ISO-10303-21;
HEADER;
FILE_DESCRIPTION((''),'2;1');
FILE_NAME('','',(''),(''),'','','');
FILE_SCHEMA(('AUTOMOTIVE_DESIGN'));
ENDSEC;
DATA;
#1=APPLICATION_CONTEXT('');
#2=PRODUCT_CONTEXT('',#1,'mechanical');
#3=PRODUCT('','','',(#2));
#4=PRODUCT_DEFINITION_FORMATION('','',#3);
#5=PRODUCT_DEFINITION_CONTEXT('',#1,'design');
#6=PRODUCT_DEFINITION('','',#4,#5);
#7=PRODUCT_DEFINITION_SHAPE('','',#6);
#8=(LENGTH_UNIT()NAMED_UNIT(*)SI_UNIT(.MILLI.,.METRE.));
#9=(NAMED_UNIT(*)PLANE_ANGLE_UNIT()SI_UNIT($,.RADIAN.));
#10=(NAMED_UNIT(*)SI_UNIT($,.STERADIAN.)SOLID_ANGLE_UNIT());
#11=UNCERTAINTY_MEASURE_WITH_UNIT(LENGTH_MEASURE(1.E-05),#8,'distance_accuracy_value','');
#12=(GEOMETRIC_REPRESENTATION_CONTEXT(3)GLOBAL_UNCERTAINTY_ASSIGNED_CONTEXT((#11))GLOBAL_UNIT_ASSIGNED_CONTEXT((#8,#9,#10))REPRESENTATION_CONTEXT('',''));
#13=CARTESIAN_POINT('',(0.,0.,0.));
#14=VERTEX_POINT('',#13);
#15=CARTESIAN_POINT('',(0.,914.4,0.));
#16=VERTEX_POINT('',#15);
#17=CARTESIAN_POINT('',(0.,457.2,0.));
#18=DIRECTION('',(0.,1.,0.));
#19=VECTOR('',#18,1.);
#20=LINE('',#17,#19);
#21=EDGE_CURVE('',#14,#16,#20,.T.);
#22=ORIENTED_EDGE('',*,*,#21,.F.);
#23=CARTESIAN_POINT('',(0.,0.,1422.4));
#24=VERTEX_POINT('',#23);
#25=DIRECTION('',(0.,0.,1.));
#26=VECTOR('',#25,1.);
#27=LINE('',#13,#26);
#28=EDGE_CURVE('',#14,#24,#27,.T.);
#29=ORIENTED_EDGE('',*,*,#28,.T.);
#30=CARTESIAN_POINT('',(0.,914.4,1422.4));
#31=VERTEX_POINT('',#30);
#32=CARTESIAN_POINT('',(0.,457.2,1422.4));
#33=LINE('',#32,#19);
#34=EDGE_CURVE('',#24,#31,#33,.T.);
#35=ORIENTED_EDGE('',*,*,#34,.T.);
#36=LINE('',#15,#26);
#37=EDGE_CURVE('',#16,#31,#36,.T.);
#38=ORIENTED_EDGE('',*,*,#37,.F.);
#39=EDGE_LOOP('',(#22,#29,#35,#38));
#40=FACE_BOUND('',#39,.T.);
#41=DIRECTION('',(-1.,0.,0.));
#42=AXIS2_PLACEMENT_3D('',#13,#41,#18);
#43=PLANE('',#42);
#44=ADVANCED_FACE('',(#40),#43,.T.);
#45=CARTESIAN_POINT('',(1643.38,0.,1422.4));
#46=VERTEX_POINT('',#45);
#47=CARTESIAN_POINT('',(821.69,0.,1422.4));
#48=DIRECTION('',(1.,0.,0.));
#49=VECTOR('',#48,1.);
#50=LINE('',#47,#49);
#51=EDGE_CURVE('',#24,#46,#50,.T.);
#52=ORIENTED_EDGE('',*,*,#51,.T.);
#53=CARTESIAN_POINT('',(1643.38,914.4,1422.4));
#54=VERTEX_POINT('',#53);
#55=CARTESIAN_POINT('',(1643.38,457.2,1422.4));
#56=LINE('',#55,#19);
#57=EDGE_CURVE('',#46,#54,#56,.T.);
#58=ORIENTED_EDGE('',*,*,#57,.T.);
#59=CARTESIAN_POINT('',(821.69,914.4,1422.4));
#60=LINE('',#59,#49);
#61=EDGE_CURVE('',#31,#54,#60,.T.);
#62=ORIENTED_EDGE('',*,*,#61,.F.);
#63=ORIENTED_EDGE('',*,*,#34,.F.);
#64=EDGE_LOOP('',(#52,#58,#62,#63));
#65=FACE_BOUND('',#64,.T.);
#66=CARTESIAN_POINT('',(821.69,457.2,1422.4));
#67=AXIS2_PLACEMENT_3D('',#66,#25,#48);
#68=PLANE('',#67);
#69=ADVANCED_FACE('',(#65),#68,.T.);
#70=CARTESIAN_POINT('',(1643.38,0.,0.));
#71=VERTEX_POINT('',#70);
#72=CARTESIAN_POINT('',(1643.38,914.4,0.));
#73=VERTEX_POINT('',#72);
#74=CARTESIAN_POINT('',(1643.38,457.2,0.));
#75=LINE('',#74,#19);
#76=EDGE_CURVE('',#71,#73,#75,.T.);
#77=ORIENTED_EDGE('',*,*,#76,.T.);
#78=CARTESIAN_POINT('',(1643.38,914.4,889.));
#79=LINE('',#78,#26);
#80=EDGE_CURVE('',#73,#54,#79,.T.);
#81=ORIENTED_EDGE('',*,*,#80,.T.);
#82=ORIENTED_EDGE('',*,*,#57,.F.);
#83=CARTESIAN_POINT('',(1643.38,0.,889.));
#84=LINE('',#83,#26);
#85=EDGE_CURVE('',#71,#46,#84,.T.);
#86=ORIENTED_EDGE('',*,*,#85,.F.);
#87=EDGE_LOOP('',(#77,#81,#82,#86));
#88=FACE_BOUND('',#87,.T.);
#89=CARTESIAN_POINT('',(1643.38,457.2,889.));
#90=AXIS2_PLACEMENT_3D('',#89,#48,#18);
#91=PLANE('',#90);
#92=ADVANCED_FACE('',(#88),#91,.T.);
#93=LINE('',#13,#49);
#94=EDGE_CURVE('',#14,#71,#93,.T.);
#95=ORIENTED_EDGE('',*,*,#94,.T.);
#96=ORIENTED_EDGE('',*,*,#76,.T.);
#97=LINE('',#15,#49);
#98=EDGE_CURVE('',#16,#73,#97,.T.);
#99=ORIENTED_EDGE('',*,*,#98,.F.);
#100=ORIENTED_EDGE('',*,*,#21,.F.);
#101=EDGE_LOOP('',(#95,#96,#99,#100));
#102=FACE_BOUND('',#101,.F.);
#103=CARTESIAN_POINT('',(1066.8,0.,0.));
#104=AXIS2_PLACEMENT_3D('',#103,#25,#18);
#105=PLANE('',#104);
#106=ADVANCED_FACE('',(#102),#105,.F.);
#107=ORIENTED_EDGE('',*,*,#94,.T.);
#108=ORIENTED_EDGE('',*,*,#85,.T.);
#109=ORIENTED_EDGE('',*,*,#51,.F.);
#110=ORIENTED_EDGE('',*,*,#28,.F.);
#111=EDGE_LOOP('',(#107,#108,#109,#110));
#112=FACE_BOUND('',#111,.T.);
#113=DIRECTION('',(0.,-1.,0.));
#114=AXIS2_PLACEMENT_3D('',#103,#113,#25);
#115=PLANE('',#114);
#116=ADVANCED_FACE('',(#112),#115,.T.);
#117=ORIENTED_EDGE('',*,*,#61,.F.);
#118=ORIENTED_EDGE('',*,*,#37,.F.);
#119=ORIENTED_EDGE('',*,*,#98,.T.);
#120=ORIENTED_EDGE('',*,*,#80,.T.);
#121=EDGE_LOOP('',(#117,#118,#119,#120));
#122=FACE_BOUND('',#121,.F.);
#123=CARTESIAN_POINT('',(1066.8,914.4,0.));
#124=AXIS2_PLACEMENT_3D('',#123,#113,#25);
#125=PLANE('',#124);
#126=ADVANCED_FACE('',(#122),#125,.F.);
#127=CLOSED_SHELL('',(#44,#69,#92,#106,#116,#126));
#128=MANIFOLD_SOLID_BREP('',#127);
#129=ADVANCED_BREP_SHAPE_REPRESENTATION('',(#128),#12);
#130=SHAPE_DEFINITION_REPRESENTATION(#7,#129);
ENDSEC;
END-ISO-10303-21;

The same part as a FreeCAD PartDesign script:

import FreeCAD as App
import Part
import Sketcher
Q = App.Units.Quantity

doc = App.newDocument("Part")
body = doc.addObject("PartDesign::Body", "Body")

# Sketch on XY plane
sketch1 = doc.addObject("Sketcher::SketchObject", "Sketch")
body.addObject(sketch1)
sketch1.AttachmentSupport = (doc.XY_Plane, [""])
sketch1.MapMode = "FlatFace"
sketch1.addGeometry([
    Part.LineSegment(App.Vector(0, 914.4, 0), App.Vector(0, 0, 0)),
    Part.LineSegment(App.Vector(0, 0, 0), App.Vector(1066.8, 0, 0)),
    Part.LineSegment(App.Vector(1066.8, 0, 0), App.Vector(1066.8, 914.4, 0)),
    Part.LineSegment(App.Vector(1066.8, 914.4, 0), App.Vector(0, 914.4, 0)),
], False)
sketch1.addConstraint([
    Sketcher.Constraint("Coincident", 0, 2, 1, 1),
    Sketcher.Constraint("Coincident", 1, 2, 2, 1),
    Sketcher.Constraint("Coincident", 2, 2, 3, 1),
    Sketcher.Constraint("Coincident", 3, 2, 0, 1),
    Sketcher.Constraint("Vertical", 0),
    Sketcher.Constraint("Horizontal", 1),
    Sketcher.Constraint("Vertical", 2),
    Sketcher.Constraint("Horizontal", 3),
    Sketcher.Constraint("Coincident", 0, 2, -1, 1),
    Sketcher.Constraint("DistanceX", 1, 1, 1, 2, Q("42 in")),
    Sketcher.Constraint("DistanceY", 0, 2, 0, 1, Q("36 in")),
])
pad1 = doc.addObject("PartDesign::Pad", "Pad")
body.addObject(pad1)
pad1.Profile = sketch1
pad1.Length = Q("70 in")

# Sketch on YZ plane
sketch2 = doc.addObject("Sketcher::SketchObject", "Sketch001")
body.addObject(sketch2)
sketch2.AttachmentSupport = (doc.YZ_Plane, [""])
sketch2.MapMode = "FlatFace"
sketch2.AttachmentOffset = App.Placement(App.Vector(0, 0, 42 * 25.4), App.Rotation())
sketch2.addGeometry([
    Part.LineSegment(App.Vector(0, 1778, 0), App.Vector(0, 0, 0)),
    Part.LineSegment(App.Vector(0, 0, 0), App.Vector(914.4, 0, 0)),
    Part.LineSegment(App.Vector(914.4, 0, 0), App.Vector(914.4, 1778, 0)),
    Part.LineSegment(App.Vector(914.4, 1778, 0), App.Vector(0, 1778, 0)),
], False)
sketch2.addConstraint([
    Sketcher.Constraint("Coincident", 0, 2, 1, 1),
    Sketcher.Constraint("Coincident", 1, 2, 2, 1),
    Sketcher.Constraint("Coincident", 2, 2, 3, 1),
    Sketcher.Constraint("Coincident", 3, 2, 0, 1),
    Sketcher.Constraint("Vertical", 0),
    Sketcher.Constraint("Horizontal", 1),
    Sketcher.Constraint("Vertical", 2),
    Sketcher.Constraint("Horizontal", 3),
    Sketcher.Constraint("Coincident", 0, 2, -1, 1),
    Sketcher.Constraint("DistanceX", 1, 1, 1, 2, Q("36 in")),
    Sketcher.Constraint("DistanceY", 0, 2, 0, 1, Q("70 in")),
])
pad2 = doc.addObject("PartDesign::Pad", "Pad001")
body.addObject(pad2)
pad2.Profile = sketch2
pad2.Length = Q("22.7 in")

# Sketch on XY plane
sketch3 = doc.addObject("Sketcher::SketchObject", "Sketch002")
body.addObject(sketch3)
sketch3.AttachmentSupport = (doc.XY_Plane, [""])
sketch3.MapMode = "FlatFace"
sketch3.AttachmentOffset = App.Placement(App.Vector(0, 0, 70 * 25.4), App.Rotation())
sketch3.addGeometry([
    Part.LineSegment(App.Vector(0, 914.4, 0), App.Vector(0, 0, 0)),
    Part.LineSegment(App.Vector(0, 0, 0), App.Vector(1643.38, 0, 0)),
    Part.LineSegment(App.Vector(1643.38, 0, 0), App.Vector(1643.38, 914.4, 0)),
    Part.LineSegment(App.Vector(1643.38, 914.4, 0), App.Vector(0, 914.4, 0)),
], False)
sketch3.addConstraint([
    Sketcher.Constraint("Coincident", 0, 2, 1, 1),
    Sketcher.Constraint("Coincident", 1, 2, 2, 1),
    Sketcher.Constraint("Coincident", 2, 2, 3, 1),
    Sketcher.Constraint("Coincident", 3, 2, 0, 1),
    Sketcher.Constraint("Vertical", 0),
    Sketcher.Constraint("Horizontal", 1),
    Sketcher.Constraint("Vertical", 2),
    Sketcher.Constraint("Horizontal", 3),
    Sketcher.Constraint("Coincident", 0, 2, -1, 1),
    Sketcher.Constraint("DistanceY", 0, 2, 0, 1, Q("36 in")),
    Sketcher.Constraint("DistanceX", 1, 1, 1, 2, Q("64.7 in")),
])
pocket1 = doc.addObject("PartDesign::Pocket", "Pocket")
body.addObject(pocket1)
pocket1.Profile = sketch3
pocket1.Length = Q("14 in")

doc.recompute()
